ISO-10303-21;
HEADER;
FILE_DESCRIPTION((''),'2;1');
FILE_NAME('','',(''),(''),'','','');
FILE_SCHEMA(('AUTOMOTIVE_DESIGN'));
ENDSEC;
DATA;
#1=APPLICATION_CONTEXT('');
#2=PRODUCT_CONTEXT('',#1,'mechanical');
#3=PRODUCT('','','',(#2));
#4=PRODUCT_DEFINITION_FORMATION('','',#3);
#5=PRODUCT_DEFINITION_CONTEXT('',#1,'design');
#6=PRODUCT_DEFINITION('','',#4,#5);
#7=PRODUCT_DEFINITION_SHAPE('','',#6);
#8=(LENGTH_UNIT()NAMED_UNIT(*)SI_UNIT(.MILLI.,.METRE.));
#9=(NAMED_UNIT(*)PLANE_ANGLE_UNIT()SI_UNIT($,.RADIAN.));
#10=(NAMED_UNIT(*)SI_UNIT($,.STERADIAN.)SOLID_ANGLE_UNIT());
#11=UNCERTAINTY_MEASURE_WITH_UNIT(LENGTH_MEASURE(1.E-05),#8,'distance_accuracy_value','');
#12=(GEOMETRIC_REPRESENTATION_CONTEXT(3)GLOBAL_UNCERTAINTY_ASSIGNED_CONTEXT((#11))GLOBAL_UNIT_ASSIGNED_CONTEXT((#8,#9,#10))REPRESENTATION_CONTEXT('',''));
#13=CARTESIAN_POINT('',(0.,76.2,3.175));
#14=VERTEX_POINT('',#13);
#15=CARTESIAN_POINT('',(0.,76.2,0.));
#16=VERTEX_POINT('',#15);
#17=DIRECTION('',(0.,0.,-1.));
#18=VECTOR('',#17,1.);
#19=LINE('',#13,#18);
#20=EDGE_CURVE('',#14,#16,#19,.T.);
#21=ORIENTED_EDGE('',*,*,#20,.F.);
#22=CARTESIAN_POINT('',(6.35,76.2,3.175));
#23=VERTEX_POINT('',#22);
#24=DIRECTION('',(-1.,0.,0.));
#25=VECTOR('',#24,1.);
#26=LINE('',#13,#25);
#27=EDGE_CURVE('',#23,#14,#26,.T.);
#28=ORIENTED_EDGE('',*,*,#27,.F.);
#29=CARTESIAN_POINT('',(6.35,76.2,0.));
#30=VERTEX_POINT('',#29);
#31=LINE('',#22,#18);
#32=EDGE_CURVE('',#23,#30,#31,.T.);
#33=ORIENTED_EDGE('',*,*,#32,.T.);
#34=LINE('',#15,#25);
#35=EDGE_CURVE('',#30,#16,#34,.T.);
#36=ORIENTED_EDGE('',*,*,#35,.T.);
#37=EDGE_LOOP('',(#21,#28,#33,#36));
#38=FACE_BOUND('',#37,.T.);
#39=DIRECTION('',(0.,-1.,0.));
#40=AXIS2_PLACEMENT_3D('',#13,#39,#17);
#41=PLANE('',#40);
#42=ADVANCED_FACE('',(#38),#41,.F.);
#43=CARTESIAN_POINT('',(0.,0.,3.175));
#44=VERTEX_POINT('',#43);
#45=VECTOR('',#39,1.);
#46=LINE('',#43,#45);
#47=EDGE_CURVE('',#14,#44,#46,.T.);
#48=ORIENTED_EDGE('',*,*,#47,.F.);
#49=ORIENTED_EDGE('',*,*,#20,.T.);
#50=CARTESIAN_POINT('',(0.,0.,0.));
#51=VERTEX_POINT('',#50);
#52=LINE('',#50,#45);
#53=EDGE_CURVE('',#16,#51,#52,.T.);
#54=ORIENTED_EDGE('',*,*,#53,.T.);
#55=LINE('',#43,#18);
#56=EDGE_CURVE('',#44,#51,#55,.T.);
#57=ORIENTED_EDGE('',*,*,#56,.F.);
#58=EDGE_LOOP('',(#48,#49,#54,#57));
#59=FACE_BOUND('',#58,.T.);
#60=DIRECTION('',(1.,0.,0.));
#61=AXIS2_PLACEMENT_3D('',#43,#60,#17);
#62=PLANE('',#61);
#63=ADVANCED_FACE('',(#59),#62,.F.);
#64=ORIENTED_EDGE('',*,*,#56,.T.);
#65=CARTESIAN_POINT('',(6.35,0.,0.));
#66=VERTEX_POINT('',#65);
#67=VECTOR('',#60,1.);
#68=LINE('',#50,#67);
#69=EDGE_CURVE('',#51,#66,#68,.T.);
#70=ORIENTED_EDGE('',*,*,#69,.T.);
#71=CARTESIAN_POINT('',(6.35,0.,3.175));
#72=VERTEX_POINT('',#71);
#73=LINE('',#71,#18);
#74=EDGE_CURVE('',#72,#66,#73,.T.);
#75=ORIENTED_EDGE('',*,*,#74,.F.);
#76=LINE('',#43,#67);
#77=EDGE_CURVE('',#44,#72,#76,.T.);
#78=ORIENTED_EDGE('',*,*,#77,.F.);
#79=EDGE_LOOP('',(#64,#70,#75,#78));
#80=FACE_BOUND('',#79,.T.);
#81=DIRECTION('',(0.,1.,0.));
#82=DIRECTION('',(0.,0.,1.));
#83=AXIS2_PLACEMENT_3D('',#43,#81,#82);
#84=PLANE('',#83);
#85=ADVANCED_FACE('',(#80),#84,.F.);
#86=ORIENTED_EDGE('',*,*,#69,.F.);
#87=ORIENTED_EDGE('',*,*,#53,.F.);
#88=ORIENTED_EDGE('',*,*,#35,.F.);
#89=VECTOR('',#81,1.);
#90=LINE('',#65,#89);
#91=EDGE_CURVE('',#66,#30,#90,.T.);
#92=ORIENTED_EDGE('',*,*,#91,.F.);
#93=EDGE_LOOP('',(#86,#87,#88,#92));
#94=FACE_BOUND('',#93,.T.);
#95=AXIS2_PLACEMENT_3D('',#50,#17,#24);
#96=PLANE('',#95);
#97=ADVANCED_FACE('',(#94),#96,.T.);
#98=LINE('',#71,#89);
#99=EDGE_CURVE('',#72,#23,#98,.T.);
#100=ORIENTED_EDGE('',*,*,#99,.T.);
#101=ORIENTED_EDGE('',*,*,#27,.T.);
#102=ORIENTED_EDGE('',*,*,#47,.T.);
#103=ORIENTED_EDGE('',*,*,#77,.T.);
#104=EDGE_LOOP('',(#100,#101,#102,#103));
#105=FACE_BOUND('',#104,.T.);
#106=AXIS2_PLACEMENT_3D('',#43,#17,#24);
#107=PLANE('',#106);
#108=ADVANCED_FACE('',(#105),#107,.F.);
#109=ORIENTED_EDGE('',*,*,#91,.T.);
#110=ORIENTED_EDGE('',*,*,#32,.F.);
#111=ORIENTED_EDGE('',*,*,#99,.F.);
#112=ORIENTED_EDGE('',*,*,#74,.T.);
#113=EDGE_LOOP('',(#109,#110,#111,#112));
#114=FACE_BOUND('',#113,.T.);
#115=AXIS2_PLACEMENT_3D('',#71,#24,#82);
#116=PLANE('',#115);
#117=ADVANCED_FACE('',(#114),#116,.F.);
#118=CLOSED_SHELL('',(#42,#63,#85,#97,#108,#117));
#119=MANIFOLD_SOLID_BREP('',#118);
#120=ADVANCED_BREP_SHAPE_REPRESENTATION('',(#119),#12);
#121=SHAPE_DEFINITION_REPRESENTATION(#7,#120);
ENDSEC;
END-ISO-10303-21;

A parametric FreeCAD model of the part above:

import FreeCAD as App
import Part
import Sketcher
Q = App.Units.Quantity


def add_polygon(sketch, points):
    """Adds a closed chain of lines whose ends are joined by coincident constraints."""
    first, n = sketch.GeometryCount, len(points)
    for a, b in zip(points, points[1:] + points[:1]):
        sketch.addGeometry(Part.LineSegment(App.Vector(*a, 0), App.Vector(*b, 0)), False)
    for i in range(n):
        sketch.addConstraint(Sketcher.Constraint("Coincident", first + i, 2, first + (i + 1) % n, 1))

doc = App.newDocument("Part")
body = doc.addObject("PartDesign::Body", "Body")

# Sketch on XY plane
sketch1 = body.newObject("Sketcher::SketchObject", "Sketch")
sketch1.AttachmentSupport = (doc.getObject("XY_Plane"), [""])
sketch1.MapMode = "FlatFace"
add_polygon(sketch1, [(0, 76.2), (0, 0), (6.35, 0), (6.35, 76.2)])  # lines 0-3
sketch1.addConstraint([
    Sketcher.Constraint("Vertical", 0),
    Sketcher.Constraint("Horizontal", 1),
    Sketcher.Constraint("Vertical", 2),
    Sketcher.Constraint("Horizontal", 3),
    Sketcher.Constraint("Coincident", 0, 2, -1, 1),
    Sketcher.Constraint("DistanceY", 0, 2, 0, 1, Q("3 in")),
    Sketcher.Constraint("DistanceX", 1, 1, 1, 2, Q("0.25 in")),
])
pad1 = body.newObject("PartDesign::Pad", "Pad")
pad1.Profile = sketch1
pad1.Length = Q("0.125 in")

# Sketch on XY plane
sketch2 = body.newObject("Sketcher::SketchObject", "Sketch001")
sketch2.AttachmentSupport = (doc.getObject("XY_Plane"), [""])
sketch2.MapMode = "FlatFace"
add_polygon(sketch2, [(0, 76.2), (0, 0), (6.35, 0), (6.35, 76.2)])  # lines 0-3
sketch2.addConstraint([
    Sketcher.Constraint("Vertical", 0),
    Sketcher.Constraint("Horizontal", 1),
    Sketcher.Constraint("Vertical", 2),
    Sketcher.Constraint("Horizontal", 3),
    Sketcher.Constraint("Coincident", 0, 2, -1, 1),
    Sketcher.Constraint("DistanceY", 0, 2, 0, 1, Q("3 in")),
    Sketcher.Constraint("DistanceX", 1, 1, 1, 2, Q("0.25 in")),
])
pad2 = body.newObject("PartDesign::Pad", "Pad001")
pad2.Profile = sketch2
pad2.Length = Q("0.125 in")

doc.recompute()
